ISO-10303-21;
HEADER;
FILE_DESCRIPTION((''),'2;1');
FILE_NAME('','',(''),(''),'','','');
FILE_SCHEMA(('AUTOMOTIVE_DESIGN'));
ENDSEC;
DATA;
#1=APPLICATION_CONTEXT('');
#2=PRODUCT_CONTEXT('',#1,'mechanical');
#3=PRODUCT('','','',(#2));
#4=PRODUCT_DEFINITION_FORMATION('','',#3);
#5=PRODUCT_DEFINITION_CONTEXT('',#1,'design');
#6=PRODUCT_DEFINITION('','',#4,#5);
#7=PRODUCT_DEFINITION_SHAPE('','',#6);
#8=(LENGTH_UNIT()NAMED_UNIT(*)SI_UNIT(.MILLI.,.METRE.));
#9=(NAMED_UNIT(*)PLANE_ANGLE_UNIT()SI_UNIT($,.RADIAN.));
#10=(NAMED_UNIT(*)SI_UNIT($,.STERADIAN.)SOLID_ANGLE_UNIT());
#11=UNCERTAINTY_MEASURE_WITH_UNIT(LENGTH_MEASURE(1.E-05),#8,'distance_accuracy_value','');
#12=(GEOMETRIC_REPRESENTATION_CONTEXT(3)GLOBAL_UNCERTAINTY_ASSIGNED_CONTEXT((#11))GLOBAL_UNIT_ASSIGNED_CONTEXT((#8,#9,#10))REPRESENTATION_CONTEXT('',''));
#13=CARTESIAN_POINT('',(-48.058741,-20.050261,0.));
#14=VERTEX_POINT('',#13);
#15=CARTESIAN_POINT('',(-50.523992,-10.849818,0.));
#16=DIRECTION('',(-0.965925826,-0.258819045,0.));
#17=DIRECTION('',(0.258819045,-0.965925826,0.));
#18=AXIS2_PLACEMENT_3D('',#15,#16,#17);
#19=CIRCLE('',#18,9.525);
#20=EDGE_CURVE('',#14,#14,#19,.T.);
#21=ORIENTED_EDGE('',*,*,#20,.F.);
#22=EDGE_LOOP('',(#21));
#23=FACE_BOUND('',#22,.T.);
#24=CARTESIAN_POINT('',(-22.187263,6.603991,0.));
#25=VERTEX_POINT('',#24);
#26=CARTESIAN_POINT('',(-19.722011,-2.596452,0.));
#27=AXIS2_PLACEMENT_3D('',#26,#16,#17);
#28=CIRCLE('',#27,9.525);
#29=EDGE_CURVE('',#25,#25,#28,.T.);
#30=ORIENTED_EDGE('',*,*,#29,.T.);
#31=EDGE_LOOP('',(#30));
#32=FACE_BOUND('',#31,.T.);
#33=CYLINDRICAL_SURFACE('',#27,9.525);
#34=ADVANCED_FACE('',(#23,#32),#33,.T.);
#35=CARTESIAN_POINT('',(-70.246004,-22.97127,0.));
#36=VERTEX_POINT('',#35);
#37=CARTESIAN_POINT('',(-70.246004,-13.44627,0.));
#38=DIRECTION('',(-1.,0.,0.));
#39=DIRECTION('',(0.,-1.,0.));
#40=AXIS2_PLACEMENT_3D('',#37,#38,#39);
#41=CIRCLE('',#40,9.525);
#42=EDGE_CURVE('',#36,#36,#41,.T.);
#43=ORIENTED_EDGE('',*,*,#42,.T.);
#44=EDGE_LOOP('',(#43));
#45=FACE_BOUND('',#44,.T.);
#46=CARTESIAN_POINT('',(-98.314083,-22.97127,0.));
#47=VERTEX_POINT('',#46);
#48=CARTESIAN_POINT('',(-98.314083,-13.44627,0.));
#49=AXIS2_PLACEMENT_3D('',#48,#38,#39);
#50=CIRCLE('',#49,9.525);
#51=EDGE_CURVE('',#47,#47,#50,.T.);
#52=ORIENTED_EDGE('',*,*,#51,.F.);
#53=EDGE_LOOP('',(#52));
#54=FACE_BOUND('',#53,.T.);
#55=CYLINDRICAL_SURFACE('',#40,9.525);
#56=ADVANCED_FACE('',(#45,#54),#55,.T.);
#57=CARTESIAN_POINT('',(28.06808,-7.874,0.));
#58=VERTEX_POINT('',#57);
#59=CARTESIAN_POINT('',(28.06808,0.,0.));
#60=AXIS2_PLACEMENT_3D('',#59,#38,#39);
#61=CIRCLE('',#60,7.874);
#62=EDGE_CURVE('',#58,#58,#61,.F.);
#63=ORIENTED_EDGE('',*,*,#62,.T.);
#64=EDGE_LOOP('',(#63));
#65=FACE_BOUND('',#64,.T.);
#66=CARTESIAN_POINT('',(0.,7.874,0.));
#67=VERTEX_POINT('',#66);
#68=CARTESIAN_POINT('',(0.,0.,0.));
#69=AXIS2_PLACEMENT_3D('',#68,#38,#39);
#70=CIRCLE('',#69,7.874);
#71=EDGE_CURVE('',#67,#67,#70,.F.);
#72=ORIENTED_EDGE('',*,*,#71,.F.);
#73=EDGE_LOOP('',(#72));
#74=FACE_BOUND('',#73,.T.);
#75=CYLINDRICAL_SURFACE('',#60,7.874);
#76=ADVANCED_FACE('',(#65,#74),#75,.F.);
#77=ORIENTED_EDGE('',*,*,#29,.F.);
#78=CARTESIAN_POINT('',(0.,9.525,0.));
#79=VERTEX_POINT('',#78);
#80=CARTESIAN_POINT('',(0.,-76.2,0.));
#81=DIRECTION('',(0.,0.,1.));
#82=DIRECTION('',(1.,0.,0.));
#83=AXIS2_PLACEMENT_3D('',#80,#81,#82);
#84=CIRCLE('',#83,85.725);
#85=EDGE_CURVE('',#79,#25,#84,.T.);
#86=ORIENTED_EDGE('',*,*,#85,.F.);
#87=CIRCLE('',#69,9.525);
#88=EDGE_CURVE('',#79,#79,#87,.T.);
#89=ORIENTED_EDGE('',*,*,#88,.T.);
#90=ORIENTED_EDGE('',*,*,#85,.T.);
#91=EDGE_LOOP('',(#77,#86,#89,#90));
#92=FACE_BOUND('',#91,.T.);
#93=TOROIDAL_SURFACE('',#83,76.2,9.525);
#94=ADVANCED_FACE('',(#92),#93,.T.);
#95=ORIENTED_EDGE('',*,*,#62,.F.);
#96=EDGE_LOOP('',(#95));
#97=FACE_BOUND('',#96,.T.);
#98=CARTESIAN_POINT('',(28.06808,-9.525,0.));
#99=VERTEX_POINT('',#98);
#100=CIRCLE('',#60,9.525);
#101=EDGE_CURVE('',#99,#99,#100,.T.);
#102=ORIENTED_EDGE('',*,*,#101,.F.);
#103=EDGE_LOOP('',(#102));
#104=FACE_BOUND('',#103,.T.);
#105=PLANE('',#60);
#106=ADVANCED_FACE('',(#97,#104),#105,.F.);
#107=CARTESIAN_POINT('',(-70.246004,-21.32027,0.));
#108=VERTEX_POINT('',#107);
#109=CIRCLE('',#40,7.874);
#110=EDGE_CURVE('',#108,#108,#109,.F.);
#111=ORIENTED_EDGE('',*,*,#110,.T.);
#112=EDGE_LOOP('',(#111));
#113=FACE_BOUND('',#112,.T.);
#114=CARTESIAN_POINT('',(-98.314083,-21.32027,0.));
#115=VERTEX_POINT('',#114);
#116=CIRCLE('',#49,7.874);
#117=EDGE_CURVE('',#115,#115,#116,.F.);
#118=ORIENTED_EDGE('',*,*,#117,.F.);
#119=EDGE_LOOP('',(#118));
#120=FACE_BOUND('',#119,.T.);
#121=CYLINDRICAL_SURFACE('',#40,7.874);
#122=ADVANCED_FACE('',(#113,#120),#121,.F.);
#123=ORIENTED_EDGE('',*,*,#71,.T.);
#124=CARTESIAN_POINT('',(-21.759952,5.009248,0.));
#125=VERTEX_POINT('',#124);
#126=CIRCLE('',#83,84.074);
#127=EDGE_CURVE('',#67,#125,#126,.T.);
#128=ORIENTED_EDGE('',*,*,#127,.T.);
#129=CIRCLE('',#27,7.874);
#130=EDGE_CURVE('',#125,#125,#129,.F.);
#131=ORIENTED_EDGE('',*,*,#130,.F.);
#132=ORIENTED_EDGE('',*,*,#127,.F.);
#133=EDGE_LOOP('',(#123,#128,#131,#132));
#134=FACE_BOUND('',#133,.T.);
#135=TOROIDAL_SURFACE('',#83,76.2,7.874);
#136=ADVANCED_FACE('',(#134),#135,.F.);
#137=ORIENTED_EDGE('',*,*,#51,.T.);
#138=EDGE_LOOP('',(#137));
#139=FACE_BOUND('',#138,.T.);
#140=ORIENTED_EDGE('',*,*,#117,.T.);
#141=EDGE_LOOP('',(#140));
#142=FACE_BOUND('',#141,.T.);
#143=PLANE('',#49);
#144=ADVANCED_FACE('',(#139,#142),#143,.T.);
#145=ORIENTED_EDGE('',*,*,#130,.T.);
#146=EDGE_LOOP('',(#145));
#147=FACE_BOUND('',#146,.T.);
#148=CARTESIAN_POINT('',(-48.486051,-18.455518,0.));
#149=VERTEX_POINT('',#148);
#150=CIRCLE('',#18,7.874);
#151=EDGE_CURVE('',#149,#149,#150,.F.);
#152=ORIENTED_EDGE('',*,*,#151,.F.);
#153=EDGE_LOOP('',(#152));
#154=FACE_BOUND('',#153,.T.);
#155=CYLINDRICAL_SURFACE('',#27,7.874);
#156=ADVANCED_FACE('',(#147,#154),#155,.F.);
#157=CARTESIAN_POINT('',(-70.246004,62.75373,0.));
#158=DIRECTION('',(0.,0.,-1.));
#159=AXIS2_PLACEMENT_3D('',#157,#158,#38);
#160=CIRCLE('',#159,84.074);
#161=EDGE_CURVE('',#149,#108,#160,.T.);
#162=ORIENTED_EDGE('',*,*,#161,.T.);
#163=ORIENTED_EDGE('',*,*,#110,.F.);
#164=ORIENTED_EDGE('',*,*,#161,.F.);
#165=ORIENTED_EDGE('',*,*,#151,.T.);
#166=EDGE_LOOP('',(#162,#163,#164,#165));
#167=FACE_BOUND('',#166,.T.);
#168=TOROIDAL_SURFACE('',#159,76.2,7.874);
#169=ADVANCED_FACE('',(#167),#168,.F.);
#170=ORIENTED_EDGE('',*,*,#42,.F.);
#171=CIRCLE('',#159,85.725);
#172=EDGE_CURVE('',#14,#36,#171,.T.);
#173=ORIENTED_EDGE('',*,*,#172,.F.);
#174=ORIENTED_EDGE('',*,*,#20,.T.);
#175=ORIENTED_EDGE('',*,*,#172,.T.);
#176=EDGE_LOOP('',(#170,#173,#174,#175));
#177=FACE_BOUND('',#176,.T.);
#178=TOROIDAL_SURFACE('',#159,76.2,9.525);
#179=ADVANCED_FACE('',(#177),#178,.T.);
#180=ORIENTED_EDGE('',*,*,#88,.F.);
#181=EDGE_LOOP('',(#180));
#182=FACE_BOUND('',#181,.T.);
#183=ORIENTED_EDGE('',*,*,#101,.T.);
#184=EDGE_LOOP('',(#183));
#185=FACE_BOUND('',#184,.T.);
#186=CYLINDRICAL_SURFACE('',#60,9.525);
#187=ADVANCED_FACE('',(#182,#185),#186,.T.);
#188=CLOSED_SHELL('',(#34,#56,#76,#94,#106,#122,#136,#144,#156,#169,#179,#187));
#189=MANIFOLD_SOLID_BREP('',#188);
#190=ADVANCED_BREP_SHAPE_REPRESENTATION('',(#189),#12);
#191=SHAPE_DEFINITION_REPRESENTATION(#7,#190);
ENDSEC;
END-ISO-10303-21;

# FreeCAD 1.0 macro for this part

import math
import FreeCAD as App
import Part
import Sketcher

V = App.Vector
Q = App.Units.Quantity

doc = App.newDocument("Part")
body = doc.addObject("PartDesign::Body", "Body")

# Sketch on YZ plane
sketch1 = body.newObject("Sketcher::SketchObject", "Sketch")
sketch1.AttachmentSupport = (doc.getObject("YZ_Plane"), [""])
sketch1.MapMode = "FlatFace"
sketch1.AttachmentOffset = App.Placement(V(0, 0, 28.06808), App.Rotation())
sketch1.addGeometry([
    Part.Circle(V(0, 0, 0), V(0, 0, 1), 10),
    Part.Circle(V(0, 0, 0), V(0, 0, 1), 8),
], False)
sketch1.addConstraint([
    Sketcher.Constraint("Coincident", 0, 3, -1, 1),
    Sketcher.Constraint("Coincident", 1, 3, -1, 1),
    Sketcher.Constraint("Diameter", 0, Q("0.75 in")),
    Sketcher.Constraint("Diameter", 1, Q("0.62 in")),
])

# Sketch on XY plane
sketch2 = body.newObject("Sketcher::SketchObject", "Sketch001")
sketch2.AttachmentSupport = (doc.getObject("XY_Plane"), [""])
sketch2.MapMode = "FlatFace"
sketch2.addGeometry([
    Part.LineSegment(V(28, 0, 0), V(0, 0, 0)),  # 0
    Part.ArcOfCircle(Part.Circle(V(0, -76, 0), V(0, 0, 1), 76), math.radians(90), math.radians(105)),  # 1
    Part.LineSegment(V(-20, -3, 0), V(-51, -11, 0)),  # 2
    Part.ArcOfCircle(Part.Circle(V(-70, 63, 0), V(0, 0, 1), 76), math.radians(-90), math.radians(-75)),  # 3
    Part.LineSegment(V(-70, -13, 0), V(-98, -13, 0)),  # 4
], False)
sketch2.addConstraint([
    Sketcher.Constraint("Tangent", 0, 2, 1, 1),
    Sketcher.Constraint("Tangent", 1, 2, 2, 1),
    Sketcher.Constraint("Tangent", 2, 2, 3, 2),
    Sketcher.Constraint("Tangent", 3, 1, 4, 1),
    Sketcher.Constraint("Horizontal", 0),
    Sketcher.Constraint("Horizontal", 4),
    Sketcher.Constraint("Coincident", 0, 2, -1, 1),
    Sketcher.Constraint("Equal", 1, 3),
    Sketcher.Constraint("Equal", 0, 4),
    Sketcher.Constraint("Radius", 1, Q("3 in")),
    Sketcher.Constraint("Angle", 2, Q("-165 deg")),
    Sketcher.Constraint("DistanceX", 0, 2, 0, 1, 28.06808),
    Sketcher.Constraint("DistanceY", -1, 1, 3, 3, 62.75373),
])
doc.recompute()

additivepipe = body.newObject("PartDesign::AdditivePipe", "AdditivePipe")
additivepipe.Profile = sketch1
additivepipe.Spine = (sketch2, ["Edge1", "Edge2", "Edge3", "Edge4", "Edge5"])

doc.recompute()
